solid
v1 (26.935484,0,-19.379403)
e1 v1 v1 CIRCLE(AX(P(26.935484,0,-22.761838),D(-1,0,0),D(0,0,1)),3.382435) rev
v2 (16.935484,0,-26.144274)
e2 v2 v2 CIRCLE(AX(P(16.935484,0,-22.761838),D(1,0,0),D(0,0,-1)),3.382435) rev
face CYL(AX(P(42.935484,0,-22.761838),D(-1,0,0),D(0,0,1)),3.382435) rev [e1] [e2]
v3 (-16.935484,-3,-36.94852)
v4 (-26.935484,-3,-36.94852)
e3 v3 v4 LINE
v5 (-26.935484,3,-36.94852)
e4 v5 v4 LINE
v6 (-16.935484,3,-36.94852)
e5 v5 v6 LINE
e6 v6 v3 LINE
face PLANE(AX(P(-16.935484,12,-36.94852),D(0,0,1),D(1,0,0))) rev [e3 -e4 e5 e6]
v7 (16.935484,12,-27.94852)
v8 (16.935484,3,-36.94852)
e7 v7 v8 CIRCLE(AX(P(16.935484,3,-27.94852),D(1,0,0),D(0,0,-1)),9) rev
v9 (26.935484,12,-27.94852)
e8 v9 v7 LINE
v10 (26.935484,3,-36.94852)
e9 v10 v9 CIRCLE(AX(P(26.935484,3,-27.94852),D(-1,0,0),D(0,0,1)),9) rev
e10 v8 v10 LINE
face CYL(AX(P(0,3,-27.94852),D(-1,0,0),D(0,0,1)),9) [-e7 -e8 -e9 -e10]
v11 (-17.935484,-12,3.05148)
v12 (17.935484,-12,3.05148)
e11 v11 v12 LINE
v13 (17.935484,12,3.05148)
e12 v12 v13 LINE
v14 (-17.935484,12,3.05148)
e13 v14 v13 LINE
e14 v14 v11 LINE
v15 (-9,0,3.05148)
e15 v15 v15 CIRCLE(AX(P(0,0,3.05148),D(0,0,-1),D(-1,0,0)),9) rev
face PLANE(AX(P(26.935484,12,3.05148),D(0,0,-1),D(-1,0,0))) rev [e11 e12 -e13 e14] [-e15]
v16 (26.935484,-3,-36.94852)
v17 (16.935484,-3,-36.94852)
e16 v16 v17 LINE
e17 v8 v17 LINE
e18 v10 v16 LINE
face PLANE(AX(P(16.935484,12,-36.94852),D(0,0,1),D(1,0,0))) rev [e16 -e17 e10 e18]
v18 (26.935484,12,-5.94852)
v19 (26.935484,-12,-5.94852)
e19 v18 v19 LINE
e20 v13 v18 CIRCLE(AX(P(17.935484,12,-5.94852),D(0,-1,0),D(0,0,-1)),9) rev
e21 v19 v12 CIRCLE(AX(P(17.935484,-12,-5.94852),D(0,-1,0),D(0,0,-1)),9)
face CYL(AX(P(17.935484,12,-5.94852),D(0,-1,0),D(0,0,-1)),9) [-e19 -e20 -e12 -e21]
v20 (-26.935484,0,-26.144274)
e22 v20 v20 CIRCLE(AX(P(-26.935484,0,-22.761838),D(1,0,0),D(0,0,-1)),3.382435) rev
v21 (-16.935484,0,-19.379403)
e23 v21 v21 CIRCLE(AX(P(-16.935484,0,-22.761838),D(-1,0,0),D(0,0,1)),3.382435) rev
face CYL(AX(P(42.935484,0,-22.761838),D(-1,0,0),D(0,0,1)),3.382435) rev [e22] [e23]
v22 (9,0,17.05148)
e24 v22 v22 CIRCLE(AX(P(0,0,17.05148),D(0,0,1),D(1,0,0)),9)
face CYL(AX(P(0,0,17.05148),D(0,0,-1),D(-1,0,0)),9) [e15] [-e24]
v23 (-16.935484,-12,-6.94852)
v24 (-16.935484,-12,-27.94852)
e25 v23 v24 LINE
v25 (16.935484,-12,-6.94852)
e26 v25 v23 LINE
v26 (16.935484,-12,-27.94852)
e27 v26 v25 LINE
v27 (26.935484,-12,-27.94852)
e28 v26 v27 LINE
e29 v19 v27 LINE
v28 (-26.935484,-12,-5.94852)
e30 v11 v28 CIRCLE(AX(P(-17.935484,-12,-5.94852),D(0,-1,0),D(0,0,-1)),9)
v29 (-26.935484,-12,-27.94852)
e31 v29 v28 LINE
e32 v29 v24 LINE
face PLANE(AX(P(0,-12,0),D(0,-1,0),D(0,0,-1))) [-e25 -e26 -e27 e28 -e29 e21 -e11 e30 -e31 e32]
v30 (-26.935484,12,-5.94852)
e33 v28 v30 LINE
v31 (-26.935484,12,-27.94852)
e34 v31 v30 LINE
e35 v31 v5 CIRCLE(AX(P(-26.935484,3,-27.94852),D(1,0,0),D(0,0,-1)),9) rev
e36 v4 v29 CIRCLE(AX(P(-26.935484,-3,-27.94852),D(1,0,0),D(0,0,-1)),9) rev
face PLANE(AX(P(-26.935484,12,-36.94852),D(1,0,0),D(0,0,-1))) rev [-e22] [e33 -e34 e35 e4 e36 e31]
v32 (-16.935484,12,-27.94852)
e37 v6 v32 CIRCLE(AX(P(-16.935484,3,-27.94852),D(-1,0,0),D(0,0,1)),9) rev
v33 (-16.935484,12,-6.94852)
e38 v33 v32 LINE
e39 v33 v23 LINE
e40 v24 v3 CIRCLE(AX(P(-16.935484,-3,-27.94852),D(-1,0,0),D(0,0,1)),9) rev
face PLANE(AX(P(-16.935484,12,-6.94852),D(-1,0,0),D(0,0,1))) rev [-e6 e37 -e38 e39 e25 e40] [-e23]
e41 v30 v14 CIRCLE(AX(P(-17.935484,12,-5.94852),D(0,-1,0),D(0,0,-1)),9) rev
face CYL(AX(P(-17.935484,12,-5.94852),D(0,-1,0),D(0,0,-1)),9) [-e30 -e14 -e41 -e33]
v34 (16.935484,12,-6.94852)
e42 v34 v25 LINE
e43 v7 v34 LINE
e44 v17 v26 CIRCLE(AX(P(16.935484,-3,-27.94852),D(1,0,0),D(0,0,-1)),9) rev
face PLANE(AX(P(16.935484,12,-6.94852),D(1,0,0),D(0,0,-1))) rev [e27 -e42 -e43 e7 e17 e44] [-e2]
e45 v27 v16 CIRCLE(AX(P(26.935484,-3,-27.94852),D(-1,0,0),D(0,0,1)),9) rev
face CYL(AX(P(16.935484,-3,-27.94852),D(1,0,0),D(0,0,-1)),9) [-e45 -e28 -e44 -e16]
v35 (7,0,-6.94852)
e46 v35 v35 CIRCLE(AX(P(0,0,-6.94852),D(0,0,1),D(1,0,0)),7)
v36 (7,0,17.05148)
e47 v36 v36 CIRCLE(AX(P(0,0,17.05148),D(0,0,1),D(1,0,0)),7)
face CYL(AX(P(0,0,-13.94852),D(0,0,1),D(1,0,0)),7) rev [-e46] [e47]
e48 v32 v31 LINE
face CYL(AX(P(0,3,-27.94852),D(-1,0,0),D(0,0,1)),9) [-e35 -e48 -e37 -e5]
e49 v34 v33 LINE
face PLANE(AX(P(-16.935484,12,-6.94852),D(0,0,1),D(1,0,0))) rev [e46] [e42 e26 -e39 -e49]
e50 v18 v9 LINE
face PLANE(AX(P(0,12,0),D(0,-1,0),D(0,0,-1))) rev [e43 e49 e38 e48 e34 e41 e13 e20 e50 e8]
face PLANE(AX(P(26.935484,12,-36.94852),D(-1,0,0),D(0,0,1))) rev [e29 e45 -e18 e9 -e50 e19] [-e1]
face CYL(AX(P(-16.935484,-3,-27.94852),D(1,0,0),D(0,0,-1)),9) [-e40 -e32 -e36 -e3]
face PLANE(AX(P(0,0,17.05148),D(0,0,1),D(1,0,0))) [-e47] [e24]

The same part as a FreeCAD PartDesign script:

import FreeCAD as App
import Part
import Sketcher
from FreeCAD import Vector
Q = App.Units.Quantity


def edges_at(feature, points):
    """Names of the edges that pass closest to the given points."""
    edges = feature.Shape.Edges
    near = lambda p: min(range(len(edges)), key=lambda i: edges[i].distToShape(Part.Vertex(*p))[0])
    return sorted({f"Edge{near(p) + 1}" for p in points})

doc = App.newDocument("Part")
params = doc.addObject("Spreadsheet::Sheet", "Params")
for row, (alias, value) in enumerate([
    ("sketch1_width", "10 mm"),
    ("sketch1_height", "30 mm"),
    ("sketch1_height2", "40 mm"),
    ("pad1_length", "24 mm"),
    ("sketch2_diameter", "14 mm"),
    ("pocket1_length", "34 mm"),
    ("sketch3_diameter", "18 mm"),
    ("sketch3_diameter2", "14 mm"),
    ("pad2_length", "14 mm"),
    ("fillet_radius", "9 mm"),
    ("fillet2_radius", "9 mm"),
], start=1):
    params.set(f"A{row}", alias)
    params.set(f"B{row}", "=" + value)
    params.setAlias(f"B{row}", alias)

body = doc.addObject("PartDesign::Body", "Body")

# Sketch on XZ plane
sketch1 = body.newObject("Sketcher::SketchObject", "Sketch")
sketch1.AttachmentSupport = (doc.getObject("XZ_Plane"), [""])
sketch1.MapMode = "FlatFace"
sketch1.addGeometry(Part.LineSegment(Vector(16.935484, -6.94852, 0), Vector(-16.935484, -6.94852, 0)), False)
sketch1.addGeometry(Part.LineSegment(Vector(-16.935484, -6.94852, 0), Vector(-16.935484, -36.94852, 0)), False)
sketch1.addGeometry(Part.LineSegment(Vector(-16.935484, -36.94852, 0), Vector(-26.935484, -36.94852, 0)), False)
sketch1.addGeometry(Part.LineSegment(Vector(-26.935484, -36.94852, 0), Vector(-26.935484, 3.05148, 0)), False)
sketch1.addGeometry(Part.LineSegment(Vector(-26.935484, 3.05148, 0), Vector(26.935484, 3.05148, 0)), False)
sketch1.addGeometry(Part.LineSegment(Vector(26.935484, 3.05148, 0), Vector(26.935484, -36.94852, 0)), False)
sketch1.addGeometry(Part.LineSegment(Vector(26.935484, -36.94852, 0), Vector(16.935484, -36.94852, 0)), False)
sketch1.addGeometry(Part.LineSegment(Vector(16.935484, -36.94852, 0), Vector(16.935484, -6.94852, 0)), False)
sketch1.addConstraint(Sketcher.Constraint("Coincident", 0, 2, 1, 1))
sketch1.addConstraint(Sketcher.Constraint("Coincident", 1, 2, 2, 1))
sketch1.addConstraint(Sketcher.Constraint("Coincident", 2, 2, 3, 1))
sketch1.addConstraint(Sketcher.Constraint("Coincident", 3, 2, 4, 1))
sketch1.addConstraint(Sketcher.Constraint("Coincident", 4, 2, 5, 1))
sketch1.addConstraint(Sketcher.Constraint("Coincident", 5, 2, 6, 1))
sketch1.addConstraint(Sketcher.Constraint("Coincident", 6, 2, 7, 1))
sketch1.addConstraint(Sketcher.Constraint("Coincident", 7, 2, 0, 1))
sketch1.addConstraint(Sketcher.Constraint("Horizontal", 0))
sketch1.addConstraint(Sketcher.Constraint("Vertical", 1))
sketch1.addConstraint(Sketcher.Constraint("Horizontal", 2))
sketch1.addConstraint(Sketcher.Constraint("Vertical", 3))
sketch1.addConstraint(Sketcher.Constraint("Horizontal", 4))
sketch1.addConstraint(Sketcher.Constraint("Vertical", 5))
sketch1.addConstraint(Sketcher.Constraint("Horizontal", 6))
sketch1.addConstraint(Sketcher.Constraint("Vertical", 7))
sketch1.addConstraint(Sketcher.Constraint("Symmetric", 2, 2, 5, 2, -2))
sketch1.addConstraint(Sketcher.Constraint("Equal", 2, 6))
sketch1.addConstraint(Sketcher.Constraint("DistanceX", 2, 2, 2, 1, Q("10 mm")))
sketch1.addConstraint(Sketcher.Constraint("DistanceY", 1, 2, 1, 1, Q("30 mm")))
sketch1.addConstraint(Sketcher.Constraint("DistanceY", 3, 1, 3, 2, Q("40 mm")))
sketch1.addConstraint(Sketcher.Constraint("DistanceX", 0, 2, 0, 1, Q("33.870968 mm")))
sketch1.addConstraint(Sketcher.Constraint("DistanceY", 0, 2, -1, 1, Q("6.94852 mm")))
sketch1.setExpression("Constraints[18]", "Params.sketch1_width")
sketch1.setExpression("Constraints[19]", "Params.sketch1_height")
sketch1.setExpression("Constraints[20]", "Params.sketch1_height2")
pad1 = body.newObject("PartDesign::Pad", "Pad")
pad1.Profile = sketch1
pad1.setExpression("Length", "Params.pad1_length")
pad1.Midplane = True

# Sketch on XY plane
sketch2 = body.newObject("Sketcher::SketchObject", "Sketch001")
sketch2.AttachmentSupport = (doc.getObject("XY_Plane"), [""])
sketch2.MapMode = "FlatFace"
sketch2.AttachmentOffset = App.Placement(Vector(0, 0, 3.05148), App.Rotation())
sketch2.addGeometry(Part.Circle(Vector(0, 0, 0), Vector(0, 0, 1), 7), False)
sketch2.addConstraint(Sketcher.Constraint("Coincident", 0, 3, -1, 1))
sketch2.addConstraint(Sketcher.Constraint("Diameter", 0, Q("14 mm")))
sketch2.setExpression("Constraints[1]", "Params.sketch2_diameter")
pocket1 = body.newObject("PartDesign::Pocket", "Pocket")
pocket1.Profile = sketch2
pocket1.setExpression("Length", "Params.pocket1_length")
pocket1.Midplane = True

# Sketch on XY plane
sketch3 = body.newObject("Sketcher::SketchObject", "Sketch002")
sketch3.AttachmentSupport = (doc.getObject("XY_Plane"), [""])
sketch3.MapMode = "FlatFace"
sketch3.AttachmentOffset = App.Placement(Vector(0, 0, 17.05148), App.Rotation())
sketch3.addGeometry(Part.Circle(Vector(0, 0, 0), Vector(0, 0, 1), 9), False)
sketch3.addGeometry(Part.Circle(Vector(0, 0, 0), Vector(0, 0, 1), 7), False)
sketch3.addConstraint(Sketcher.Constraint("Coincident", 0, 3, -1, 1))
sketch3.addConstraint(Sketcher.Constraint("Coincident", 1, 3, -1, 1))
sketch3.addConstraint(Sketcher.Constraint("Diameter", 0, Q("18 mm")))
sketch3.addConstraint(Sketcher.Constraint("Diameter", 1, Q("14 mm")))
sketch3.setExpression("Constraints[2]", "Params.sketch3_diameter")
sketch3.setExpression("Constraints[3]", "Params.sketch3_diameter2")
pad2 = body.newObject("PartDesign::Pad", "Pad001")
pad2.Profile = sketch3
pad2.setExpression("Length", "Params.pad2_length")
pad2.Reversed = True

# Sketch on YZ plane
sketch4 = body.newObject("Sketcher::SketchObject", "Sketch003")
sketch4.AttachmentSupport = (doc.getObject("YZ_Plane"), [""])
sketch4.MapMode = "FlatFace"
sketch4.AttachmentOffset = App.Placement(Vector(0, 0, 26.935484), App.Rotation())
sketch4.addGeometry(Part.Circle(Vector(0, -22.761838, 0), Vector(0, 0, 1), 3.382435), False)
sketch4.addConstraint(Sketcher.Constraint("PointOnObject", 0, 3, -2))
sketch4.addConstraint(Sketcher.Constraint("Diameter", 0, Q("6.764871 mm")))
sketch4.addConstraint(Sketcher.Constraint("DistanceY", 0, 3, -1, 1, Q("22.761838 mm")))
pocket2 = body.newObject("PartDesign::Pocket", "Pocket001")
pocket2.Profile = sketch4
pocket2.Type = "ThroughAll"
pocket2.Midplane = True
doc.recompute()

fillet = body.newObject("PartDesign::Fillet", "Fillet")
fillet.Base = (pocket2, edges_at(pocket2, [
    (-21.935, -12, -36.949),
    (-21.935, 12, -36.949),
    (21.935, 12, -36.949),
    (21.935, -12, -36.949),
]))
fillet.setExpression("Radius", "Params.fillet_radius")
doc.recompute()

fillet2 = body.newObject("PartDesign::Fillet", "Fillet001")
fillet2.Base = (fillet, edges_at(fillet, [(26.935, 0, 3.051), (-26.935, 0, 3.051)]))
fillet2.setExpression("Radius", "Params.fillet2_radius")

doc.recompute()
